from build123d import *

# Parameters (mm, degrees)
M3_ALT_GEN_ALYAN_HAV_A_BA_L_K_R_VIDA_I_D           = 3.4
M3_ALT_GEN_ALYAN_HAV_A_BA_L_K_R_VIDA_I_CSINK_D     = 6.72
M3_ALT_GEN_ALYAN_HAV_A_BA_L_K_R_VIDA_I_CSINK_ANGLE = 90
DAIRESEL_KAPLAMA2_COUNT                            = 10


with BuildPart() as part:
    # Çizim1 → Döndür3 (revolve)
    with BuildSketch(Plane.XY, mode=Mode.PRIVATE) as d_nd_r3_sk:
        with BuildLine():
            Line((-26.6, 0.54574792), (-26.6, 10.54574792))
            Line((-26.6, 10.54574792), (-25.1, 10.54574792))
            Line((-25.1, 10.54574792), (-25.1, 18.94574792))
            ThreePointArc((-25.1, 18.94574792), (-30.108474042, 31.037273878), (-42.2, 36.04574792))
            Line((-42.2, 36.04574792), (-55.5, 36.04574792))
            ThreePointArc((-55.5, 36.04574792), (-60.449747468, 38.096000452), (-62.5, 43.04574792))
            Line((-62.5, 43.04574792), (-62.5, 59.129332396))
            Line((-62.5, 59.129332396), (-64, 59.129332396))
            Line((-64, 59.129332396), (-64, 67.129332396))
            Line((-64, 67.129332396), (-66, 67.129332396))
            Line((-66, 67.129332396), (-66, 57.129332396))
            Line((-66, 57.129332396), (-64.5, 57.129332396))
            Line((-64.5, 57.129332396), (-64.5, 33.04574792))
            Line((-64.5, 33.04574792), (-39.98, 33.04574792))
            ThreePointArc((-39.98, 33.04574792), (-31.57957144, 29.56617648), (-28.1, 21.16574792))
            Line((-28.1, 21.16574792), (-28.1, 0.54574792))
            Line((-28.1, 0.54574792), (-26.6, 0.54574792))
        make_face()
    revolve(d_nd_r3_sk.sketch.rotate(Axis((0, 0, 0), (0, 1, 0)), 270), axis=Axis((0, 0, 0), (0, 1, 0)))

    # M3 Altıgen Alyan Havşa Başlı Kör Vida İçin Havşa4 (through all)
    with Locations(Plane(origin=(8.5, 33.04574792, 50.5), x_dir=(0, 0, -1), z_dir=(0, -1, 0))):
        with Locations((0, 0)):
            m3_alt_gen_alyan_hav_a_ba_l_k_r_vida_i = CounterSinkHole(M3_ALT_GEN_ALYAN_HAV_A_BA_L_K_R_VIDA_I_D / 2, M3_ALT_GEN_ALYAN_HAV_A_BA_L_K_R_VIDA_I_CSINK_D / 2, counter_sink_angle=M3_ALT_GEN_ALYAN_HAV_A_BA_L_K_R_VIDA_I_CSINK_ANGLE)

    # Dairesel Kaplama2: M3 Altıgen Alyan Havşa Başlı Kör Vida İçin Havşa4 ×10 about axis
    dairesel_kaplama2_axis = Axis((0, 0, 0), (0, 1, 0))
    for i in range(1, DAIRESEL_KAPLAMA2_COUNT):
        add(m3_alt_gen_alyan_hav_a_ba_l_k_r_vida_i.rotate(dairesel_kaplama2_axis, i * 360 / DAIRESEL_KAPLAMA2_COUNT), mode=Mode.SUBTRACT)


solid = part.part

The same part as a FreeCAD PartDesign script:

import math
import FreeCAD as App
import Part
import Sketcher

V = App.Vector

doc = App.newDocument("Part")
body = doc.addObject("PartDesign::Body", "Body")

# Sketch on XY plane
sketch1 = body.newObject("Sketcher::SketchObject", "Sketch")
sketch1.AttachmentSupport = (doc.getObject("XY_Plane"), [""])
sketch1.MapMode = "FlatFace"
sketch1.addGeometry([
    Part.LineSegment(V(-26.6, 0.5, 0), V(-26.6, 10.5, 0)),  # 0
    Part.LineSegment(V(-26.6, 10.5, 0), V(-25.1, 10.5, 0)),  # 1
    Part.LineSegment(V(-25.1, 10.5, 0), V(-25.1, 18.9, 0)),  # 2
    Part.ArcOfCircle(Part.Circle(V(-42.2, 18.9, 0), V(0, 0, 1), 17.1), math.radians(0), math.radians(90)),  # 3
    Part.LineSegment(V(-42.2, 36, 0), V(-55.5, 36, 0)),  # 4
    Part.ArcOfCircle(Part.Circle(V(-55.5, 43, 0), V(0, 0, 1), 7), math.radians(-180), math.radians(-90)),  # 5
    Part.LineSegment(V(-62.5, 43, 0), V(-62.5, 59.1, 0)),  # 6
    Part.LineSegment(V(-62.5, 59.1, 0), V(-64, 59.1, 0)),  # 7
    Part.LineSegment(V(-64, 59.1, 0), V(-64, 67.1, 0)),  # 8
    Part.LineSegment(V(-64, 67.1, 0), V(-66, 67.1, 0)),  # 9
    Part.LineSegment(V(-66, 67.1, 0), V(-66, 57.1, 0)),  # 10
    Part.LineSegment(V(-66, 57.1, 0), V(-64.5, 57.1, 0)),  # 11
    Part.LineSegment(V(-64.5, 57.1, 0), V(-64.5, 33, 0)),  # 12
    Part.LineSegment(V(-64.5, 33, 0), V(-40, 33, 0)),  # 13
    Part.ArcOfCircle(Part.Circle(V(-40, 21.2, 0), V(0, 0, 1), 11.9), math.radians(0), math.radians(90)),  # 14
    Part.LineSegment(V(-28.1, 21.2, 0), V(-28.1, 0.5, 0)),  # 15
    Part.LineSegment(V(-28.1, 0.5, 0), V(-26.6, 0.5, 0)),  # 16
], False)
sketch1.addConstraint([
    Sketcher.Constraint("Coincident", 0, 2, 1, 1),
    Sketcher.Constraint("Coincident", 1, 2, 2, 1),
    Sketcher.Constraint("Tangent", 2, 2, 3, 1),
    Sketcher.Constraint("Tangent", 3, 2, 4, 1),
    Sketcher.Constraint("Tangent", 4, 2, 5, 2),
    Sketcher.Constraint("Tangent", 5, 1, 6, 1),
    Sketcher.Constraint("Coincident", 6, 2, 7, 1),
    Sketcher.Constraint("Coincident", 7, 2, 8, 1),
    Sketcher.Constraint("Coincident", 8, 2, 9, 1),
    Sketcher.Constraint("Coincident", 9, 2, 10, 1),
    Sketcher.Constraint("Coincident", 10, 2, 11, 1),
    Sketcher.Constraint("Coincident", 11, 2, 12, 1),
    Sketcher.Constraint("Coincident", 12, 2, 13, 1),
    Sketcher.Constraint("Tangent", 13, 2, 14, 2),
    Sketcher.Constraint("Tangent", 14, 1, 15, 1),
    Sketcher.Constraint("Coincident", 15, 2, 16, 1),
    Sketcher.Constraint("Coincident", 16, 2, 0, 1),
    Sketcher.Constraint("Vertical", 0),
    Sketcher.Constraint("Horizontal", 1),
    Sketcher.Constraint("Vertical", 2),
    Sketcher.Constraint("Horizontal", 4),
    Sketcher.Constraint("Vertical", 6),
    Sketcher.Constraint("Horizontal", 7),
    Sketcher.Constraint("Vertical", 8),
    Sketcher.Constraint("Horizontal", 9),
    Sketcher.Constraint("Vertical", 10),
    Sketcher.Constraint("Horizontal", 11),
    Sketcher.Constraint("Vertical", 12),
    Sketcher.Constraint("Horizontal", 13),
    Sketcher.Constraint("Vertical", 15),
    Sketcher.Constraint("Horizontal", 16),
    Sketcher.Constraint("Equal", 1, 7),
    Sketcher.Constraint("Equal", 7, 11),
    Sketcher.Constraint("Equal", 11, 16),
    Sketcher.Constraint("Equal", 0, 10),
    Sketcher.Constraint("Radius", 5, 7.0),
    Sketcher.Constraint("Radius", 3, 17.1),
    Sketcher.Constraint("DistanceX", 9, 2, 9, 1, 2.0),
    Sketcher.Constraint("DistanceY", 0, 1, 0, 2, 10.0),
    Sketcher.Constraint("DistanceY", 8, 1, 8, 2, 8.0),
    Sketcher.Constraint("Radius", 14, 11.88),
    Sketcher.Constraint("DistanceX", 1, 1, 1, 2, 1.5),
    Sketcher.Constraint("DistanceX", 4, 2, 4, 1, 13.3),
    Sketcher.Constraint("DistanceY", 2, 1, 2, 2, 8.4),
    Sketcher.Constraint("DistanceX", 7, 2, -1, 1, 64.0),
    Sketcher.Constraint("DistanceY", 12, 2, 4, 2, 3.0),
    Sketcher.Constraint("DistanceY", 6, 1, 6, 2, 16.083584),
    Sketcher.Constraint("DistanceY", -1, 1, 3, 3, 18.945748),
])
revolution = body.newObject("PartDesign::Revolution", "Revolution")
revolution.Profile = sketch1
revolution.ReferenceAxis = (sketch1, ["V_Axis"])
revolution.Angle = 360

# Sketch on XZ plane
sketch2 = body.newObject("Sketcher::SketchObject", "Sketch001")
sketch2.AttachmentSupport = (doc.getObject("XZ_Plane"), [""])
sketch2.MapMode = "FlatFace"
sketch2.AttachmentOffset = App.Placement(V(0, 0, -33.045748), App.Rotation())
sketch2.addGeometry(Part.Circle(V(8.5, 50.5, 0), V(0, 0, 1), 1.7), False)
sketch2.addConstraint([
    Sketcher.Constraint("Diameter", 0, 3.4),
    Sketcher.Constraint("DistanceX", -1, 1, 0, 3, 8.5),
    Sketcher.Constraint("DistanceY", -1, 1, 0, 3, 50.5),
])
doc.recompute()
hole = body.newObject("PartDesign::Hole", "Hole")
hole.Profile = sketch2
hole.ThreadType = "None"
hole.Diameter = 3.4
hole.DepthType = "ThroughAll"
hole.HoleCutType = "Countersink"
hole.HoleCutDiameter = 6.72
hole.HoleCutCountersinkAngle = 90
doc.recompute()

polarpattern = body.newObject("PartDesign::PolarPattern", "PolarPattern")
polarpattern.Originals = [hole]
polarpattern.Axis = (doc.getObject("Y_Axis"), [""])
polarpattern.Angle = 360
polarpattern.Occurrences = 10
body.Tip = polarpattern

doc.recompute()
